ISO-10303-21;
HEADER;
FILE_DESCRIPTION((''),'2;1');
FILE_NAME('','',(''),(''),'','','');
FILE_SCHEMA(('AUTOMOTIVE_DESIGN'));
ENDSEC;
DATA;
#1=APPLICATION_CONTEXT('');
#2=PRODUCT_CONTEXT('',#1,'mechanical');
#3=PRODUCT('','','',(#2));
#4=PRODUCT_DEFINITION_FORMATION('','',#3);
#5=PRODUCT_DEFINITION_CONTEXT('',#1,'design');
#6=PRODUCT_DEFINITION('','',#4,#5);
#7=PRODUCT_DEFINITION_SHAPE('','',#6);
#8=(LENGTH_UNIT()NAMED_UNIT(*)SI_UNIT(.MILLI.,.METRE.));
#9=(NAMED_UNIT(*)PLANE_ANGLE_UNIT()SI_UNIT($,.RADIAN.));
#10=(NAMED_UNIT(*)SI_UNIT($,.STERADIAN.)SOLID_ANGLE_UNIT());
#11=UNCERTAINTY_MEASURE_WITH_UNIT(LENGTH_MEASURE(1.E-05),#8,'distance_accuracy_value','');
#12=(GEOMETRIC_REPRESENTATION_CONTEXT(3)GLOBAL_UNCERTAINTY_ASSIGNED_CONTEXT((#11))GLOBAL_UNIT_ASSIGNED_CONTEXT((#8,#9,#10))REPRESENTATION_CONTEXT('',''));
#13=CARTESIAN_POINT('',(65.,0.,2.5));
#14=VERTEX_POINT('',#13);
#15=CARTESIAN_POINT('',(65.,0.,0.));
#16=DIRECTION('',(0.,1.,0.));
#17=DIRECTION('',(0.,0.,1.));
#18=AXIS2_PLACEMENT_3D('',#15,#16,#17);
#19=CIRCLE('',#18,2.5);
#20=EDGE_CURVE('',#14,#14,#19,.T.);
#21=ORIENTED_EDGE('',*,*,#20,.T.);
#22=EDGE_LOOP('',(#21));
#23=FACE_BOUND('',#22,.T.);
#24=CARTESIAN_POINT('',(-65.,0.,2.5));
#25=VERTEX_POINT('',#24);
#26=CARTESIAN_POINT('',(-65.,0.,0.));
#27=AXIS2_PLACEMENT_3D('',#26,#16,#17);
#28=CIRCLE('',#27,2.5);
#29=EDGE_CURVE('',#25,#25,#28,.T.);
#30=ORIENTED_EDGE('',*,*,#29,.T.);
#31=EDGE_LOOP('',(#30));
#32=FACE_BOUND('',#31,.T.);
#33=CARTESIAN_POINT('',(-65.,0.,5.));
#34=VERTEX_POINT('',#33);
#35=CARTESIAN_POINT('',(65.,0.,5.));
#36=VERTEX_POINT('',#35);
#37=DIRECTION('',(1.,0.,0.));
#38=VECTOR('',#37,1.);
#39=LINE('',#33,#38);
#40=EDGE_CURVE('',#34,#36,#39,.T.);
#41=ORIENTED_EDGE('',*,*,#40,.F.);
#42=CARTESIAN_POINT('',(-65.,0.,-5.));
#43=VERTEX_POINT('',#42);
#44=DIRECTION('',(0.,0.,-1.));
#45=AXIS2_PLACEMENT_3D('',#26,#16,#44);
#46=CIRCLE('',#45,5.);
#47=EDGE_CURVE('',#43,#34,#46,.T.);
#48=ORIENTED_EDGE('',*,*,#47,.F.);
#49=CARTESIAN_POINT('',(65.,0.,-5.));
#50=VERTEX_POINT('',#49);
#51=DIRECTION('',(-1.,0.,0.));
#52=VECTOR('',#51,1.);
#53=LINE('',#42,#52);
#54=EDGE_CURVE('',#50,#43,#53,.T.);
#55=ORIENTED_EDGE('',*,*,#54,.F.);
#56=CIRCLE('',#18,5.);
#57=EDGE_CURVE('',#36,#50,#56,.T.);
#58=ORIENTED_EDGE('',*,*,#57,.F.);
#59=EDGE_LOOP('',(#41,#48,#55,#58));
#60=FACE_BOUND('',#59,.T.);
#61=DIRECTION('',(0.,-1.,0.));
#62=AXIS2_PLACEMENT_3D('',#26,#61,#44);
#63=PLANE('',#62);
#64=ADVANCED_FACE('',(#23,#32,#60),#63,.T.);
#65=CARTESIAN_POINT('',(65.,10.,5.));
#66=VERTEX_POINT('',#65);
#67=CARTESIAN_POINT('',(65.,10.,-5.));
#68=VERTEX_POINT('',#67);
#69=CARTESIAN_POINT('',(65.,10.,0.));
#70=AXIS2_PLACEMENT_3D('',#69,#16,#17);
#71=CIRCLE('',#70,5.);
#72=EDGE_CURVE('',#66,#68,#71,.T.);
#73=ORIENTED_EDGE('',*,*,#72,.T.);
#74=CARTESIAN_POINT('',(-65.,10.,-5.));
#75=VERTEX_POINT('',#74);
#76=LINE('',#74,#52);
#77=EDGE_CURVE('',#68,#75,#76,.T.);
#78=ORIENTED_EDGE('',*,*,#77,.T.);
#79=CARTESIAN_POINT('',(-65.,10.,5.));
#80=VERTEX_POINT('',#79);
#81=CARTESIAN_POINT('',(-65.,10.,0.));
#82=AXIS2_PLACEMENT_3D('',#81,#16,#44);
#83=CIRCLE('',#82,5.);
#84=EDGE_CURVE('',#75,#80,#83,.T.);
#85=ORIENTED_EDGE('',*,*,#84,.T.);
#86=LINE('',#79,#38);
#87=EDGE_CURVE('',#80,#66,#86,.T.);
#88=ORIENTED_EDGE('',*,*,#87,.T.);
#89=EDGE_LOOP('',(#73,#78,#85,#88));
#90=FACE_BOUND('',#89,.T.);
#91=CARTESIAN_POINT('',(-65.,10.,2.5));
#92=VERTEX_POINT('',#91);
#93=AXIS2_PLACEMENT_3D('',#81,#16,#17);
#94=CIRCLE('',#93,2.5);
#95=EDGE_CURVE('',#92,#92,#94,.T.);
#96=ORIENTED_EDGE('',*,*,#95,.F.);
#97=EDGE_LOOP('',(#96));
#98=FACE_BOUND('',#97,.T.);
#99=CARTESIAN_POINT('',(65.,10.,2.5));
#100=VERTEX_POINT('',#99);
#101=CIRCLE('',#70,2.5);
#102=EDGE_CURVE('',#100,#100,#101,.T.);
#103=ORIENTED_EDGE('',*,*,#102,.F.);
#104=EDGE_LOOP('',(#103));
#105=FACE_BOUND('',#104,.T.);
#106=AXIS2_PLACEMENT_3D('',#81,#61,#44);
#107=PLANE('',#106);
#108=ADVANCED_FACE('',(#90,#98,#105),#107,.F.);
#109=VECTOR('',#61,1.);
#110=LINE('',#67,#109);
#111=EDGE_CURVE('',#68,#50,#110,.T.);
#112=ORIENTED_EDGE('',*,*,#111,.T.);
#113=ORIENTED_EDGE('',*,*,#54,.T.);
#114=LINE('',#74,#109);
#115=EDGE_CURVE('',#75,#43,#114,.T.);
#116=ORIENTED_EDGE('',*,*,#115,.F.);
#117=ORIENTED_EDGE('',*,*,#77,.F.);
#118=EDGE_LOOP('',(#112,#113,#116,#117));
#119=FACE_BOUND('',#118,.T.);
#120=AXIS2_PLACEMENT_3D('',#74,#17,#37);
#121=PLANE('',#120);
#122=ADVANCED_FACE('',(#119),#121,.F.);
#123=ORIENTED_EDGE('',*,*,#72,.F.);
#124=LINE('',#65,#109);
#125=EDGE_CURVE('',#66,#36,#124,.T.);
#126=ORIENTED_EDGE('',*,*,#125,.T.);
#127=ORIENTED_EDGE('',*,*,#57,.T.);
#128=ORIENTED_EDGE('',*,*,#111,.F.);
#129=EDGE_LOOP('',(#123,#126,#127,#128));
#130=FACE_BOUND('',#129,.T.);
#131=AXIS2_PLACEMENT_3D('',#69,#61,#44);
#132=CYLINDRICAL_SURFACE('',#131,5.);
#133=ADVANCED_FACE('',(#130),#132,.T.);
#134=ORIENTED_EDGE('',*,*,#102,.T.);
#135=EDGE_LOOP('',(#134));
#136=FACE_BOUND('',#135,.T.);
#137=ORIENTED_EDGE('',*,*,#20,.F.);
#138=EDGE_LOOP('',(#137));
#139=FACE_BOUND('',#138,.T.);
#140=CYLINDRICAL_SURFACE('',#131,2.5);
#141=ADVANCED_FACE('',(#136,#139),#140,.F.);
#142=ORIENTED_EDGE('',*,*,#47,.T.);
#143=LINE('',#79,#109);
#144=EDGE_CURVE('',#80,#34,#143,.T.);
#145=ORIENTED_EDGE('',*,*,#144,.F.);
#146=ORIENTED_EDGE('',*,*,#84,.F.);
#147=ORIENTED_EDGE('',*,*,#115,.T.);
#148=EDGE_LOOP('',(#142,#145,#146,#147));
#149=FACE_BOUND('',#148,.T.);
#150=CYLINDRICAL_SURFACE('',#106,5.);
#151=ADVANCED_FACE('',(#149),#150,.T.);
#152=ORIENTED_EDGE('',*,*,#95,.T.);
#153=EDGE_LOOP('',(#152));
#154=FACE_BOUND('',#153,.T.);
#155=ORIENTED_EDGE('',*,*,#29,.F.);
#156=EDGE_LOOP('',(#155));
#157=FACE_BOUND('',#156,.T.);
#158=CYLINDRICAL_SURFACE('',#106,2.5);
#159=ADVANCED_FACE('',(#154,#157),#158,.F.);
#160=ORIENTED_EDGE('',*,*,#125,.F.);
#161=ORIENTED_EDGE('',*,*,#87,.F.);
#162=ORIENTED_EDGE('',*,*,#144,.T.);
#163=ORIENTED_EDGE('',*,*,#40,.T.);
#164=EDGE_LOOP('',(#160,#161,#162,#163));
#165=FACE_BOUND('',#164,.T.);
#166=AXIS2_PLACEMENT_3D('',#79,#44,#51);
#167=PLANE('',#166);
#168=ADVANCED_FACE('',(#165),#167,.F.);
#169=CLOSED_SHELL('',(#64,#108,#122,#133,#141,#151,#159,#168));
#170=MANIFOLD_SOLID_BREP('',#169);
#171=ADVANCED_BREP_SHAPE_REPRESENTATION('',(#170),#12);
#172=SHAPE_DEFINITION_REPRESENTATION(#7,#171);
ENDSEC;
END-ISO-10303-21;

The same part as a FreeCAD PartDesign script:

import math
import FreeCAD as App
import Part
import Sketcher
from FreeCAD import Vector

doc = App.newDocument("Part")
body = doc.addObject("PartDesign::Body", "Body")

sketch1 = body.newObject("Sketcher::SketchObject", "Sketch")
sketch1.AttachmentSupport = (doc.getObject("XZ_Plane"), [""])
sketch1.MapMode = "FlatFace"
sketch1.addGeometry(Part.LineSegment(Vector(-65, 5, 0), Vector(65, 5, 0)), False)
sketch1.addGeometry(Part.ArcOfCircle(Part.Circle(Vector(65, 0, 0), Vector(0, 0, 1), 5), math.radians(-90), math.radians(90)), False)
sketch1.addGeometry(Part.LineSegment(Vector(65, -5, 0), Vector(-65, -5, 0)), False)
sketch1.addGeometry(Part.ArcOfCircle(Part.Circle(Vector(-65, 0, 0), Vector(0, 0, 1), 5), math.radians(90), math.radians(270)), False)
sketch1.addGeometry(Part.Circle(Vector(-65, 0, 0), Vector(0, 0, 1), 2.5), False)
sketch1.addGeometry(Part.Circle(Vector(65, 0, 0), Vector(0, 0, 1), 2.5), False)
sketch1.addConstraint(Sketcher.Constraint("Tangent", 0, 2, 1, 2))
sketch1.addConstraint(Sketcher.Constraint("Tangent", 1, 1, 2, 1))
sketch1.addConstraint(Sketcher.Constraint("Tangent", 2, 2, 3, 2))
sketch1.addConstraint(Sketcher.Constraint("Tangent", 3, 1, 0, 1))
sketch1.addConstraint(Sketcher.Constraint("Horizontal", 0))
sketch1.addConstraint(Sketcher.Constraint("Horizontal", 2))
sketch1.addConstraint(Sketcher.Constraint("Coincident", 4, 3, 3, 3))
sketch1.addConstraint(Sketcher.Constraint("Coincident", 5, 3, 1, 3))
sketch1.addConstraint(Sketcher.Constraint("Equal", 4, 5))
sketch1.addConstraint(Sketcher.Constraint("Symmetric", 1, 3, 3, 3, -1, 1))
sketch1.addConstraint(Sketcher.Constraint("Diameter", 4, 5.0))
sketch1.addConstraint(Sketcher.Constraint("Radius", 1, 5.0))
sketch1.addConstraint(Sketcher.Constraint("DistanceX", 0, 1, 0, 2, 130.0))
pad1 = body.newObject("PartDesign::Pad", "Pad")
pad1.Profile = sketch1
pad1.Length = 10
pad1.Reversed = True

doc.recompute()
